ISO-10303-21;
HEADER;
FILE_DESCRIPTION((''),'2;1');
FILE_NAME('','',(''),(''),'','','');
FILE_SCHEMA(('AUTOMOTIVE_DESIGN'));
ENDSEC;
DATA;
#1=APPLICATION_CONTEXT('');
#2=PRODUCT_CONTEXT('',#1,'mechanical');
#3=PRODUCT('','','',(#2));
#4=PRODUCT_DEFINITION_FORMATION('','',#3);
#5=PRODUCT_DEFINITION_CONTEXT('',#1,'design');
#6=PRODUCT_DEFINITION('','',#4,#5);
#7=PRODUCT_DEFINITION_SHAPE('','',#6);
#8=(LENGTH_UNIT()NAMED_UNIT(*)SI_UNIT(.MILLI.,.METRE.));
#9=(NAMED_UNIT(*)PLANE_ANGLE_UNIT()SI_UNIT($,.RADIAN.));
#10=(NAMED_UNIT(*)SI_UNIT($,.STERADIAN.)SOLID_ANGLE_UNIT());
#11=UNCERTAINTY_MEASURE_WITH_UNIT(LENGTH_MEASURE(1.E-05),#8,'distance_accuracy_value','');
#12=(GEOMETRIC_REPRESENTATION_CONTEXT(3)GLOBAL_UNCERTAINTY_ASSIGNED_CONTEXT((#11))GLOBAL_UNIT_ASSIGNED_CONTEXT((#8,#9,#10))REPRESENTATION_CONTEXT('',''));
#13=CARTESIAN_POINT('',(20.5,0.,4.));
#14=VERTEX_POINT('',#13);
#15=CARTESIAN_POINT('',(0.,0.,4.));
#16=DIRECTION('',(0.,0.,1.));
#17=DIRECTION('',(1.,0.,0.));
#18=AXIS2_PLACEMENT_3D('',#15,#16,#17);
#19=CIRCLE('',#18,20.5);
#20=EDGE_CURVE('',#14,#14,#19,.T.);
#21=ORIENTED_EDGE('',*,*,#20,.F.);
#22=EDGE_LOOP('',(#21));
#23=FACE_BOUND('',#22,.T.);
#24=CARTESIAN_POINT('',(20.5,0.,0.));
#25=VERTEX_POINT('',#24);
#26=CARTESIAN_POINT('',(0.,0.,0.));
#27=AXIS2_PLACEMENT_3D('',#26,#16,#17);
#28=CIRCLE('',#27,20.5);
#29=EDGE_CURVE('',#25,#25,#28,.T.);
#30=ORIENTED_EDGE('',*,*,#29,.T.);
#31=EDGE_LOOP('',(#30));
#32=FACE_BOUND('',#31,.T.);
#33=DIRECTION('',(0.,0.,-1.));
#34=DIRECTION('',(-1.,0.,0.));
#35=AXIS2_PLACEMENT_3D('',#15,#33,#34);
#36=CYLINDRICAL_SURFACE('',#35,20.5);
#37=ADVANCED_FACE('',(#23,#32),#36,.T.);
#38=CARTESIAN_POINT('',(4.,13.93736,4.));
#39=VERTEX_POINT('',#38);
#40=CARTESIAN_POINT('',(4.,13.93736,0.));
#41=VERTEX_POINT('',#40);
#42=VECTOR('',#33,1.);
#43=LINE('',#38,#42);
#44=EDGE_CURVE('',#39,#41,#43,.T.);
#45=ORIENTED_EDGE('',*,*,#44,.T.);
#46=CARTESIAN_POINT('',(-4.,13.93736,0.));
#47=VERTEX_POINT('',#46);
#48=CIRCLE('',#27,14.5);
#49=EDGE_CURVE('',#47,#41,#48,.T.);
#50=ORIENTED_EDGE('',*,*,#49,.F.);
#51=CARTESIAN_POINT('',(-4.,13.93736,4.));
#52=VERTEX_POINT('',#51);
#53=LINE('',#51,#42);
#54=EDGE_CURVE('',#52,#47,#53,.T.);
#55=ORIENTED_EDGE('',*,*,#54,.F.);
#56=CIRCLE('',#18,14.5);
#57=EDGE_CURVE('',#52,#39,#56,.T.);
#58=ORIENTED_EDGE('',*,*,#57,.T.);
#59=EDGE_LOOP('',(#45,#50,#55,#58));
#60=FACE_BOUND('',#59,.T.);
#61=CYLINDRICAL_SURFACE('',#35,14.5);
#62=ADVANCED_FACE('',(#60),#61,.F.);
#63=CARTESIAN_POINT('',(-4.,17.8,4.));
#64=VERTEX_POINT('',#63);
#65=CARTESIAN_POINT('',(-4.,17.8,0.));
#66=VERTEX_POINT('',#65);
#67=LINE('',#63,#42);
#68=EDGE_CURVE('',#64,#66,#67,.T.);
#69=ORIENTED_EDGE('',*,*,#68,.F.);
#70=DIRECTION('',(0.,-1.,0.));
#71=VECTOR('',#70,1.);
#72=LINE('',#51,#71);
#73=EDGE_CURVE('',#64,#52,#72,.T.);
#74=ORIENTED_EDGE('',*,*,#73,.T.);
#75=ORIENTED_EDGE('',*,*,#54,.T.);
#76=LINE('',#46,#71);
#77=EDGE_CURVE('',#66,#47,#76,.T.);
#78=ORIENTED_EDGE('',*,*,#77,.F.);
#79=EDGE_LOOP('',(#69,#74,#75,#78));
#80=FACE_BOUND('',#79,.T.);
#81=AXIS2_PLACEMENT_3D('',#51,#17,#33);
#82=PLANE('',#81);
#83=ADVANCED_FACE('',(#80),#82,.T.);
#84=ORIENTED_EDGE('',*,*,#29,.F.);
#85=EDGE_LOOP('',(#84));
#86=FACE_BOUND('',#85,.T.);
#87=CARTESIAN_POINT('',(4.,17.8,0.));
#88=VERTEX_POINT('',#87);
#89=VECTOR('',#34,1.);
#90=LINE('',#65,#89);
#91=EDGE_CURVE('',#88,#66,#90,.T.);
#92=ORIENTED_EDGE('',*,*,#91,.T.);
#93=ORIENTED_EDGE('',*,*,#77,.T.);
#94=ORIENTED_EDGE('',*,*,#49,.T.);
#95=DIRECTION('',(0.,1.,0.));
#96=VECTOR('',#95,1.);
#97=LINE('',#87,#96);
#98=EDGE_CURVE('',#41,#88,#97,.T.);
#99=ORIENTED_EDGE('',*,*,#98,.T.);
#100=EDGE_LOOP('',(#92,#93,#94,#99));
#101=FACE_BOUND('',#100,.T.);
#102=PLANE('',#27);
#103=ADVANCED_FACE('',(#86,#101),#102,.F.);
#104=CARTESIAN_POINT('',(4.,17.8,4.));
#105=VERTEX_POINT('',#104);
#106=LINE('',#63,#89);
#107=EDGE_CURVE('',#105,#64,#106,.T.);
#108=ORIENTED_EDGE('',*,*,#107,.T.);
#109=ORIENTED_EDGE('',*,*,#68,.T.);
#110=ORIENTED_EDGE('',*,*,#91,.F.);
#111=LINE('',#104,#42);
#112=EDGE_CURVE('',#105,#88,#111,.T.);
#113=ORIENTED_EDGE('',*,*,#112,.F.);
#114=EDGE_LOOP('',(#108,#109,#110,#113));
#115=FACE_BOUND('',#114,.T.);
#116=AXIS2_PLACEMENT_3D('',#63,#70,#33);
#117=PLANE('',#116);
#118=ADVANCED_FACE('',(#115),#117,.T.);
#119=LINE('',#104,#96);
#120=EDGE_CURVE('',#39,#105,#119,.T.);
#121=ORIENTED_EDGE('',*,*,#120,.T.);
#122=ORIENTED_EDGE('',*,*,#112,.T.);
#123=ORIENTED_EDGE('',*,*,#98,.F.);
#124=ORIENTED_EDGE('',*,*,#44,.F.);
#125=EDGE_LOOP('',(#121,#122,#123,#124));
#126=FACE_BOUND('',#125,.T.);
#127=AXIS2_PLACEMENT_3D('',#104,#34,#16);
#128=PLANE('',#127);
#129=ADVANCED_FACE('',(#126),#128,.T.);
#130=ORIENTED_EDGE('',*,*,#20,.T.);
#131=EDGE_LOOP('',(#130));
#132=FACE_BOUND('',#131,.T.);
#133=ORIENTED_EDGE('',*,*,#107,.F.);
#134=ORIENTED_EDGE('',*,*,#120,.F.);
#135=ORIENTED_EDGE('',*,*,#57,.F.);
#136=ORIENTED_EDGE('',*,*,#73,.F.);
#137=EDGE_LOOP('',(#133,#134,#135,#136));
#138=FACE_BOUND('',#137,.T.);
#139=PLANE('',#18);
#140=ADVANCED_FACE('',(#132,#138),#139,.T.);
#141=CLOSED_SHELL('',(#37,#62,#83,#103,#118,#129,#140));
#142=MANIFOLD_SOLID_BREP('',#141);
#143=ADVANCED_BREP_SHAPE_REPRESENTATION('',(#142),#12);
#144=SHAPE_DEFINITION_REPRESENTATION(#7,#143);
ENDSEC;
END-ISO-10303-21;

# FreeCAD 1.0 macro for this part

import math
import FreeCAD as App
import Part
import Sketcher

V = App.Vector
Q = App.Units.Quantity

doc = App.newDocument("Part")
body = doc.addObject("PartDesign::Body", "Body")

sketch1 = body.newObject("Sketcher::SketchObject", "Sketch")
sketch1.AttachmentSupport = (doc.getObject("XY_Plane"), [""])
sketch1.MapMode = "FlatFace"
sketch1.addGeometry(Part.Circle(V(0, 0, 0), V(0, 0, 1), 20.5), False)
sketch1.addGeometry(Part.ArcOfCircle(Part.Circle(V(0, 0, 0), V(0, 0, 1), 14.5), math.radians(106), math.radians(434)), False)
sketch1.addGeometry(Part.LineSegment(V(-4, 13.9, 0), V(-4, 17.8, 0)), False)
sketch1.addGeometry(Part.LineSegment(V(-4, 17.8, 0), V(4, 17.8, 0)), False)
sketch1.addGeometry(Part.LineSegment(V(4, 17.8, 0), V(4, 13.9, 0)), False)
sketch1.addConstraint(Sketcher.Constraint("Coincident", 1, 1, 2, 1))
sketch1.addConstraint(Sketcher.Constraint("Coincident", 2, 2, 3, 1))
sketch1.addConstraint(Sketcher.Constraint("Coincident", 3, 2, 4, 1))
sketch1.addConstraint(Sketcher.Constraint("Coincident", 4, 2, 1, 2))
sketch1.addConstraint(Sketcher.Constraint("Vertical", 2))
sketch1.addConstraint(Sketcher.Constraint("Horizontal", 3))
sketch1.addConstraint(Sketcher.Constraint("Vertical", 4))
sketch1.addConstraint(Sketcher.Constraint("Coincident", 0, 3, -1, 1))
sketch1.addConstraint(Sketcher.Constraint("Coincident", 1, 3, -1, 1))
sketch1.addConstraint(Sketcher.Constraint("Horizontal", 1, 1, 4, 2))
sketch1.addConstraint(Sketcher.Constraint("Diameter", 0, Q("41 mm")))
sketch1.addConstraint(Sketcher.Constraint("Radius", 1, Q("14.5 mm")))
sketch1.addConstraint(Sketcher.Constraint("DistanceX", 3, 1, 3, 2, Q("8 mm")))
sketch1.addConstraint(Sketcher.Constraint("DistanceY", -1, 1, 2, 2, Q("17.8 mm")))
pad1 = body.newObject("PartDesign::Pad", "Pad")
pad1.Profile = sketch1
pad1.Length = 4

doc.recompute()
